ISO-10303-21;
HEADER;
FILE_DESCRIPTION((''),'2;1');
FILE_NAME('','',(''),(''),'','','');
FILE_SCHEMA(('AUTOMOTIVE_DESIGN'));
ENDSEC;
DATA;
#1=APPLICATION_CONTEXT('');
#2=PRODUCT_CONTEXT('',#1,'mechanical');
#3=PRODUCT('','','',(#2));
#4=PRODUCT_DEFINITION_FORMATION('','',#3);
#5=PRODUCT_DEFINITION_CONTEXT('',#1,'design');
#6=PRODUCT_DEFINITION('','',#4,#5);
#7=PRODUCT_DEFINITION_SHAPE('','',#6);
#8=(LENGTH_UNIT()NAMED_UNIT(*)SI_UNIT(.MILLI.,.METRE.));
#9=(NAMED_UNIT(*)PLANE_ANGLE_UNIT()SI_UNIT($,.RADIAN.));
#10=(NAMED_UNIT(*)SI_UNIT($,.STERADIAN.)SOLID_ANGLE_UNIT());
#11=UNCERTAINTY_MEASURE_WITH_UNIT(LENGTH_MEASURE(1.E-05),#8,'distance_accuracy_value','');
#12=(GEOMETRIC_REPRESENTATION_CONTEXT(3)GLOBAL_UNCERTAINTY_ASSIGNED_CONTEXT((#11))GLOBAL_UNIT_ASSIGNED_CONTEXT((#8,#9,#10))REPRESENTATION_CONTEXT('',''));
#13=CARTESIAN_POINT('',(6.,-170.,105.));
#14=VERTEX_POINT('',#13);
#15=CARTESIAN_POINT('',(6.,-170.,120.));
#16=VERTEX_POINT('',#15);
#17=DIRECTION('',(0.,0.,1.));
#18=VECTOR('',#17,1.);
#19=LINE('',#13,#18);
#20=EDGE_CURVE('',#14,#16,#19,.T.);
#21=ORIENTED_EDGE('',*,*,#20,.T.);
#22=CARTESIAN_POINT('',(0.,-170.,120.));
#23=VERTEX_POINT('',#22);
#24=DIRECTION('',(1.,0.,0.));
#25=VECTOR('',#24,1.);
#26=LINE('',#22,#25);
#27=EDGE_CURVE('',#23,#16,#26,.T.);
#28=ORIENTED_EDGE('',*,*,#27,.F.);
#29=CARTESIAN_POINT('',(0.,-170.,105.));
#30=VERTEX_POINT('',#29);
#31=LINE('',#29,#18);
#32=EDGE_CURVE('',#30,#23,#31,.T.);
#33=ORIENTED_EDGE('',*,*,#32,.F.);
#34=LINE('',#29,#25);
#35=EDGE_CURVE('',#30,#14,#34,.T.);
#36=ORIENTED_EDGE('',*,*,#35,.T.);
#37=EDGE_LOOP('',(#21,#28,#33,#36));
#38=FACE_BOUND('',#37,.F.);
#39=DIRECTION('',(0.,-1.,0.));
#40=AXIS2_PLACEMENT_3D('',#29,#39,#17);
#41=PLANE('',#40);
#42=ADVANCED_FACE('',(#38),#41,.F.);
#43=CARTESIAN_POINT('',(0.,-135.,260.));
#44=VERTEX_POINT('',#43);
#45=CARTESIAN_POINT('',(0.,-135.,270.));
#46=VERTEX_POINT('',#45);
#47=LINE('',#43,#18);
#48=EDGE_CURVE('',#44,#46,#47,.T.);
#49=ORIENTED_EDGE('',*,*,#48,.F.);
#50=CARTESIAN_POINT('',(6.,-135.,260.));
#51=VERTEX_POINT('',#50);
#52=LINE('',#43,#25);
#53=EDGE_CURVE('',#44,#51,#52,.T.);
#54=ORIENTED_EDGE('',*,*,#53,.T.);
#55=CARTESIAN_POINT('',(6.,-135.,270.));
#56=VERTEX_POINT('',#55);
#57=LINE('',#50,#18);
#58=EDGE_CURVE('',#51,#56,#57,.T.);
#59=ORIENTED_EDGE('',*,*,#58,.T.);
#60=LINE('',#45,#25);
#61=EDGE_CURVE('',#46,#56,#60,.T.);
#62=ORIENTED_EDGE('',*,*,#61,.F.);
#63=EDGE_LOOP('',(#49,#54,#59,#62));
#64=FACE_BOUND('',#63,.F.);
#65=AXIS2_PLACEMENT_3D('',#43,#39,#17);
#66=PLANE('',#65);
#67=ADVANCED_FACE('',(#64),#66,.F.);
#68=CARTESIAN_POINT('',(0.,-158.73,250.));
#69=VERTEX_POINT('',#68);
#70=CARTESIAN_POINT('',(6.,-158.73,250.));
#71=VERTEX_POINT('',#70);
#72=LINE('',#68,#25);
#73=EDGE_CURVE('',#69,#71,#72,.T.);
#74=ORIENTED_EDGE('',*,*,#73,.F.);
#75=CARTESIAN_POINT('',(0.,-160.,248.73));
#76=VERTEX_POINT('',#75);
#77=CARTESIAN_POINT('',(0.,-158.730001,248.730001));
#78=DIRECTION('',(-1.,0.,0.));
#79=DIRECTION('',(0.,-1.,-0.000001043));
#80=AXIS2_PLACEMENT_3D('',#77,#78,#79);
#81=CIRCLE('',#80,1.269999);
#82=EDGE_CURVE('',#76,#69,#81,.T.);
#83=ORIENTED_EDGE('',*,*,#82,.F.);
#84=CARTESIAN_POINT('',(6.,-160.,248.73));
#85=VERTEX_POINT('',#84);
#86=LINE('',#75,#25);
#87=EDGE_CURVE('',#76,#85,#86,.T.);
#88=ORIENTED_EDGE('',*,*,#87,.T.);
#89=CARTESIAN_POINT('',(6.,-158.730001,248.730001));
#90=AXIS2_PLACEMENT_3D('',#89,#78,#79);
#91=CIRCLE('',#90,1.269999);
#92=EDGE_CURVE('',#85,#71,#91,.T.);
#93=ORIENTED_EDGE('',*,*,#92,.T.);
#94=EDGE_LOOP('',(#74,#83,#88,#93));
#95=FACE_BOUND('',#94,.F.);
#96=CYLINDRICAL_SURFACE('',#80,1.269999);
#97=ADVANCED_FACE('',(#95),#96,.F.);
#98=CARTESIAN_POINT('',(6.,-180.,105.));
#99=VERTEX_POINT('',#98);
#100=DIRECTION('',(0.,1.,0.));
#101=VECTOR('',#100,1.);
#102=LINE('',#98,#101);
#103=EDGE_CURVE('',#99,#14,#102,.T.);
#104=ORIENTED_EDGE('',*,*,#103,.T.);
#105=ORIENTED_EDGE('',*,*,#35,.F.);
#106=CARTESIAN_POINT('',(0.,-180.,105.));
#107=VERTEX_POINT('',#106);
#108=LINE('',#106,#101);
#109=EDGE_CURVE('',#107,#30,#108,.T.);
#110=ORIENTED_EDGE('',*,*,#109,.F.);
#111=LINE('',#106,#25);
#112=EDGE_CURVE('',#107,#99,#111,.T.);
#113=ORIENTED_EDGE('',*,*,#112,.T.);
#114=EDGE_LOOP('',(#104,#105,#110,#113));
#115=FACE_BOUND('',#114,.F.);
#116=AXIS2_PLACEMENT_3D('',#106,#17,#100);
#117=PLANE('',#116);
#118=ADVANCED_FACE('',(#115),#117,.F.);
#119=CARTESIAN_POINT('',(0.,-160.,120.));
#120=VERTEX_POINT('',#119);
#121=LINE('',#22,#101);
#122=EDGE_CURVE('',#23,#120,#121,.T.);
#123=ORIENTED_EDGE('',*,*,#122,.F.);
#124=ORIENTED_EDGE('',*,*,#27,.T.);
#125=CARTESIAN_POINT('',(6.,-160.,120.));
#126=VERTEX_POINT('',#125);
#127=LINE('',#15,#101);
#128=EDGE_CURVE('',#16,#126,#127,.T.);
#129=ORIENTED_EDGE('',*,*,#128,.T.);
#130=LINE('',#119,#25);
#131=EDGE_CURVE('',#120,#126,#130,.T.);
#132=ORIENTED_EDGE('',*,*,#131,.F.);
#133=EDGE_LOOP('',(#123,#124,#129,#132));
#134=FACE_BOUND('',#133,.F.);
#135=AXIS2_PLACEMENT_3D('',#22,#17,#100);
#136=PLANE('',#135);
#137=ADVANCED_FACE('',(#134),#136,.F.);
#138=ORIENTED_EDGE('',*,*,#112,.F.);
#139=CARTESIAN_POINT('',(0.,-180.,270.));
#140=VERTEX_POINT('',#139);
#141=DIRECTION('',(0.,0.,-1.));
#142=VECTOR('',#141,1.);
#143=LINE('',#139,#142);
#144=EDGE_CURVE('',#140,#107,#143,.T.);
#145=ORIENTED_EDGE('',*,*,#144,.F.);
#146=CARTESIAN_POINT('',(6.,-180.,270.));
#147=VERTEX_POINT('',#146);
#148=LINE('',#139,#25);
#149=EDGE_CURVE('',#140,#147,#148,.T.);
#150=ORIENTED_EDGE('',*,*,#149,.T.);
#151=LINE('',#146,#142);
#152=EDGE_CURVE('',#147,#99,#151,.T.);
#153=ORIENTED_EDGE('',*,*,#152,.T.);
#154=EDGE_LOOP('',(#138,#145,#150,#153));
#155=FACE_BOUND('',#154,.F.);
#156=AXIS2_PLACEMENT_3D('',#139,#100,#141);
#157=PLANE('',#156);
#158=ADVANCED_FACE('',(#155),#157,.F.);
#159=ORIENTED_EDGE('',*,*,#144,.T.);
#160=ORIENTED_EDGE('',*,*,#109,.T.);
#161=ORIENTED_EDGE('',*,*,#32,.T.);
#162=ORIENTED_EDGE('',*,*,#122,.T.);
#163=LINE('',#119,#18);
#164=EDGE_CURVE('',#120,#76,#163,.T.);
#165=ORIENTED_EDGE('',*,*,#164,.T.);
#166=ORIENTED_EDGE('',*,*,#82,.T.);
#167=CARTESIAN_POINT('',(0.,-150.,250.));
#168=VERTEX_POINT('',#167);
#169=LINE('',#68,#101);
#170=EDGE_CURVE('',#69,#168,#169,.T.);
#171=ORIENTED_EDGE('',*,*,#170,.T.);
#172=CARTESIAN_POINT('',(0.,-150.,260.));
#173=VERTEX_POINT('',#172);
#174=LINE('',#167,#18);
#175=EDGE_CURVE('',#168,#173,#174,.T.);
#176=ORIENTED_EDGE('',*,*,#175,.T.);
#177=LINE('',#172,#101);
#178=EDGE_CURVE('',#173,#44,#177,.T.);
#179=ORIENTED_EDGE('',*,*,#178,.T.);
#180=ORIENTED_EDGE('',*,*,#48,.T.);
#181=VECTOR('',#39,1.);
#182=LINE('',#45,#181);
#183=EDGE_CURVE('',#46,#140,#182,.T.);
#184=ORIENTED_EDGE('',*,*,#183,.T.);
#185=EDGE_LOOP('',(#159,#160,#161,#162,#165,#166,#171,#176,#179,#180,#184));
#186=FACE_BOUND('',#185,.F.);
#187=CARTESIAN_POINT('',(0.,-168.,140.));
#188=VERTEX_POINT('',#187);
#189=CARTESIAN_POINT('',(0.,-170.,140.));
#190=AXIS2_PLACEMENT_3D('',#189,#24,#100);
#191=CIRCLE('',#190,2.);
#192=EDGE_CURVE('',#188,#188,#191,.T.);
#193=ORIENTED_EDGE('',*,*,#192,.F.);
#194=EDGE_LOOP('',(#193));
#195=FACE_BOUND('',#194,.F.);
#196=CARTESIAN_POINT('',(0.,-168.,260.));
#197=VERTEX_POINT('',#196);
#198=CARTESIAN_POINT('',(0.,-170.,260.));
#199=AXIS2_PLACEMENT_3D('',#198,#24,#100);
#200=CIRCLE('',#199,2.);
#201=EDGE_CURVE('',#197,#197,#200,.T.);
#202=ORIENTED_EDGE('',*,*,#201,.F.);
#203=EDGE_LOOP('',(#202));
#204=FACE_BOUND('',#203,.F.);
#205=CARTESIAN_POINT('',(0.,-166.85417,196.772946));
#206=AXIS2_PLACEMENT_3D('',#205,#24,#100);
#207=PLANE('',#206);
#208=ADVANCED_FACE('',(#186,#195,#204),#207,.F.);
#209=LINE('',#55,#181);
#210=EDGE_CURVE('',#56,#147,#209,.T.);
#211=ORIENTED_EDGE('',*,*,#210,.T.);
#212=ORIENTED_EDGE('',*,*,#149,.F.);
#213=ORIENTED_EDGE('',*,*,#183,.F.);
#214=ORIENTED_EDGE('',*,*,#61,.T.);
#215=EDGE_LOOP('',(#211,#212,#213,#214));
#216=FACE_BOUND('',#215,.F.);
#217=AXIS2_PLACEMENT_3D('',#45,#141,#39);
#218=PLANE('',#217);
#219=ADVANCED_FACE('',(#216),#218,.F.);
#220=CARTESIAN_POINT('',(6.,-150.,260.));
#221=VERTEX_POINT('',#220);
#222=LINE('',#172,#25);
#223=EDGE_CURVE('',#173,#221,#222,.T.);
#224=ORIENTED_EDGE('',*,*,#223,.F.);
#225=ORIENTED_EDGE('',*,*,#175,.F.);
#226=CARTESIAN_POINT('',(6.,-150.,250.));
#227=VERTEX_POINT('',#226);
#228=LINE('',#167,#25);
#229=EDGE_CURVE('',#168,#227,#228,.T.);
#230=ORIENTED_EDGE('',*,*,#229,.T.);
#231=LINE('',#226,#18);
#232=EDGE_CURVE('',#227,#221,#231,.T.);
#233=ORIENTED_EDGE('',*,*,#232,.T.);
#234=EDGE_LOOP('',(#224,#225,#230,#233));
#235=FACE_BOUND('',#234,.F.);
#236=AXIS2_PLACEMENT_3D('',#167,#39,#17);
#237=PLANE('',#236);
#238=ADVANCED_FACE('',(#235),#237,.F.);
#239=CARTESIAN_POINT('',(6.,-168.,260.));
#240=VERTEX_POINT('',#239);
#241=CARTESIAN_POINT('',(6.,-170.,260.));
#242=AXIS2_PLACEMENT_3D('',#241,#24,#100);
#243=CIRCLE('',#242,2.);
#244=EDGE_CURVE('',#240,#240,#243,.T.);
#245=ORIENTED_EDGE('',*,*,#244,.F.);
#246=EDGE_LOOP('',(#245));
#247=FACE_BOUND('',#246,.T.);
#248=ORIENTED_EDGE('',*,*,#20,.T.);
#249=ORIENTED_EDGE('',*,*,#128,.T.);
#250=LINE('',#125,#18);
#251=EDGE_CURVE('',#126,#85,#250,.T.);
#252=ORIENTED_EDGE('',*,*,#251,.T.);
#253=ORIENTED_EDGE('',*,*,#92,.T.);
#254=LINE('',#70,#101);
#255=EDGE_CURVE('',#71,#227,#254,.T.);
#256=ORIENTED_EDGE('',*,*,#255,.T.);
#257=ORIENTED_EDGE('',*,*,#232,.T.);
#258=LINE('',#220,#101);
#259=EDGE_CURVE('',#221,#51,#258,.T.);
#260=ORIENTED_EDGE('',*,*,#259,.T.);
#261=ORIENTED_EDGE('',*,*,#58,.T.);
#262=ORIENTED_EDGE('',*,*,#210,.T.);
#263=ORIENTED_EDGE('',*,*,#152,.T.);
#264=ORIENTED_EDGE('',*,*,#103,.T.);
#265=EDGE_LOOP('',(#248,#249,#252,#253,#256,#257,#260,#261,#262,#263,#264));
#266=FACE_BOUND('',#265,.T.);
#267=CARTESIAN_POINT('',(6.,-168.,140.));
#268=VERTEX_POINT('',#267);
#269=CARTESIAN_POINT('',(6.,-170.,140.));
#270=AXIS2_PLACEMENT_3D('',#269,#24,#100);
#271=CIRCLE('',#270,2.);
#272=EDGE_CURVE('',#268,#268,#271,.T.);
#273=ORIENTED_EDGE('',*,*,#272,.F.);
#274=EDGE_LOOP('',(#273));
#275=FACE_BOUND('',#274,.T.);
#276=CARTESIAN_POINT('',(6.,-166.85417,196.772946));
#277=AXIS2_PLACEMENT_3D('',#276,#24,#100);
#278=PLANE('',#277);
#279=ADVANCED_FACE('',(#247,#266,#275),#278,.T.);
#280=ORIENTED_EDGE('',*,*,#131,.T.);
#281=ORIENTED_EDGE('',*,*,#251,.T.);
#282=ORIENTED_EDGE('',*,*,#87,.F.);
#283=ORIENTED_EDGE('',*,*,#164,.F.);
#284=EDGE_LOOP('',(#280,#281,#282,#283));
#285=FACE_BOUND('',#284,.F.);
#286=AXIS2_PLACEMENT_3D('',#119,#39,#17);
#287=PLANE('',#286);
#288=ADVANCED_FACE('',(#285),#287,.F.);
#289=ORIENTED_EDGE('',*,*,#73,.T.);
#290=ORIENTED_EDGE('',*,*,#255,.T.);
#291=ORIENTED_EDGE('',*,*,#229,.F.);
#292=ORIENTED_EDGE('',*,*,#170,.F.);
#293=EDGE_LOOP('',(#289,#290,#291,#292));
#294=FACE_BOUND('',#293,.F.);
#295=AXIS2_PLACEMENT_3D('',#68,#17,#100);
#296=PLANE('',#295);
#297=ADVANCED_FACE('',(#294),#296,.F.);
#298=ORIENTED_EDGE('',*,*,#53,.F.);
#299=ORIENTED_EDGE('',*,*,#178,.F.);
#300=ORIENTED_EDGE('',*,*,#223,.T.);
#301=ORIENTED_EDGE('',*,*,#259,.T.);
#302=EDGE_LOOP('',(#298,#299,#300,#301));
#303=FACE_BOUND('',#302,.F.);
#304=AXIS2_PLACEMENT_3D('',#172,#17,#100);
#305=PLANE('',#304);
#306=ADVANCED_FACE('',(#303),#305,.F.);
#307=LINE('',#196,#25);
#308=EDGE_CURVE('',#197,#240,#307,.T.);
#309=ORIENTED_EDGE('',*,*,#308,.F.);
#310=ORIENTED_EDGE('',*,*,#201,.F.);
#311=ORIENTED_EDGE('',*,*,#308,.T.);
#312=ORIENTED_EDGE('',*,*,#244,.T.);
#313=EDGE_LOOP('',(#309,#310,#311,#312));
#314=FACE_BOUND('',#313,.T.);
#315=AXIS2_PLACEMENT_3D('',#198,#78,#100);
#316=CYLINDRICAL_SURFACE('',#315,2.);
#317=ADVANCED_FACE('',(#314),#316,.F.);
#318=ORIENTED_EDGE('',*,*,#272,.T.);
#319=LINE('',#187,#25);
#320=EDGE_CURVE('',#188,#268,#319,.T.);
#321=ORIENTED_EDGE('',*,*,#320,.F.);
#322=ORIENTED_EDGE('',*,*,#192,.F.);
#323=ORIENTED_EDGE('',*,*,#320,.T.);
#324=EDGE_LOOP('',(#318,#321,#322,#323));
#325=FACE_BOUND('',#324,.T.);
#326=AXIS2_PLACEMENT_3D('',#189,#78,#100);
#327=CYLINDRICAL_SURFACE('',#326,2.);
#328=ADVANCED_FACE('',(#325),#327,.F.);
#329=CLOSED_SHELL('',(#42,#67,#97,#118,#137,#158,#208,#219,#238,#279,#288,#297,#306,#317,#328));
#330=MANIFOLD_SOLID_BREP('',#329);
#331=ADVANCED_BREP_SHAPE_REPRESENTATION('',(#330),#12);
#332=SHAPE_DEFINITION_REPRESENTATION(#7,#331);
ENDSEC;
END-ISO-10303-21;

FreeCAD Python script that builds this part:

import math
import FreeCAD as App
import Part
import Sketcher
from FreeCAD import Vector
Q = App.Units.Quantity

doc = App.newDocument("Part")
body = doc.addObject("PartDesign::Body", "Body")

# Sketch on YZ plane
sketch1 = body.newObject("Sketcher::SketchObject", "Sketch")
sketch1.AttachmentSupport = (doc.getObject("YZ_Plane"), [""])
sketch1.MapMode = "FlatFace"
sketch1.addGeometry(Part.LineSegment(Vector(-158.73, 250, 0), Vector(-150, 250, 0)), False)
sketch1.addGeometry(Part.LineSegment(Vector(-150, 250, 0), Vector(-150, 260, 0)), False)
sketch1.addGeometry(Part.LineSegment(Vector(-150, 260, 0), Vector(-135, 260, 0)), False)
sketch1.addGeometry(Part.LineSegment(Vector(-135, 260, 0), Vector(-135, 270, 0)), False)
sketch1.addGeometry(Part.LineSegment(Vector(-135, 270, 0), Vector(-180, 270, 0)), False)
sketch1.addGeometry(Part.LineSegment(Vector(-180, 270, 0), Vector(-180, 105, 0)), False)
sketch1.addGeometry(Part.LineSegment(Vector(-180, 105, 0), Vector(-170, 105, 0)), False)
sketch1.addGeometry(Part.LineSegment(Vector(-170, 105, 0), Vector(-170, 120, 0)), False)
sketch1.addGeometry(Part.LineSegment(Vector(-170, 120, 0), Vector(-160, 120, 0)), False)
sketch1.addGeometry(Part.LineSegment(Vector(-160, 120, 0), Vector(-160, 248.73, 0)), False)
sketch1.addGeometry(Part.ArcOfCircle(Part.Circle(Vector(-158.730001, 248.730001, 0), Vector(0, 0, 1), 1.269999), math.radians(89.99994), math.radians(180.00006)), False)
sketch1.addGeometry(Part.Circle(Vector(-170, 140, 0), Vector(0, 0, 1), 2), False)
sketch1.addGeometry(Part.Circle(Vector(-170, 260, 0), Vector(0, 0, 1), 2), False)
sketch1.addConstraint(Sketcher.Constraint("Coincident", 0, 2, 1, 1))
sketch1.addConstraint(Sketcher.Constraint("Coincident", 1, 2, 2, 1))
sketch1.addConstraint(Sketcher.Constraint("Coincident", 2, 2, 3, 1))
sketch1.addConstraint(Sketcher.Constraint("Coincident", 3, 2, 4, 1))
sketch1.addConstraint(Sketcher.Constraint("Coincident", 4, 2, 5, 1))
sketch1.addConstraint(Sketcher.Constraint("Coincident", 5, 2, 6, 1))
sketch1.addConstraint(Sketcher.Constraint("Coincident", 6, 2, 7, 1))
sketch1.addConstraint(Sketcher.Constraint("Coincident", 7, 2, 8, 1))
sketch1.addConstraint(Sketcher.Constraint("Coincident", 8, 2, 9, 1))
sketch1.addConstraint(Sketcher.Constraint("Tangent", 9, 2, 10, 2))
sketch1.addConstraint(Sketcher.Constraint("Tangent", 10, 1, 0, 1))
sketch1.addConstraint(Sketcher.Constraint("Horizontal", 0))
sketch1.addConstraint(Sketcher.Constraint("Vertical", 1))
sketch1.addConstraint(Sketcher.Constraint("Horizontal", 2))
sketch1.addConstraint(Sketcher.Constraint("Vertical", 3))
sketch1.addConstraint(Sketcher.Constraint("Horizontal", 4))
sketch1.addConstraint(Sketcher.Constraint("Vertical", 5))
sketch1.addConstraint(Sketcher.Constraint("Horizontal", 6))
sketch1.addConstraint(Sketcher.Constraint("Vertical", 7))
sketch1.addConstraint(Sketcher.Constraint("Horizontal", 8))
sketch1.addConstraint(Sketcher.Constraint("Vertical", 9))
sketch1.addConstraint(Sketcher.Constraint("Equal", 11, 12))
sketch1.addConstraint(Sketcher.Constraint("Horizontal", 12, 3, 1, 2))
sketch1.addConstraint(Sketcher.Constraint("Vertical", 11, 3, 12, 3))
sketch1.addConstraint(Sketcher.Constraint("Vertical", 12, 3, 6, 2))
sketch1.addConstraint(Sketcher.Constraint("Equal", 6, 8))
sketch1.addConstraint(Sketcher.Constraint("Equal", 8, 1))
sketch1.addConstraint(Sketcher.Constraint("Equal", 1, 3))
sketch1.addConstraint(Sketcher.Constraint("Equal", 2, 7))
sketch1.addConstraint(Sketcher.Constraint("Diameter", 11, Q("4 mm")))
sketch1.addConstraint(Sketcher.Constraint("DistanceX", 2, 1, 2, 2, Q("15 mm")))
sketch1.addConstraint(Sketcher.Constraint("DistanceX", 4, 2, 4, 1, Q("45 mm")))
sketch1.addConstraint(Sketcher.Constraint("DistanceX", 6, 1, 6, 2, Q("10 mm")))
sketch1.addConstraint(Sketcher.Constraint("DistanceY", 5, 2, 5, 1, Q("165 mm")))
sketch1.addConstraint(Sketcher.Constraint("Radius", 10, Q("1.269999 mm")))
sketch1.addConstraint(Sketcher.Constraint("DistanceX", 11, 3, -1, 1, Q("170 mm")))
sketch1.addConstraint(Sketcher.Constraint("DistanceY", -1, 1, 11, 3, Q("140 mm")))
sketch1.addConstraint(Sketcher.Constraint("DistanceY", -1, 1, 12, 3, Q("260 mm")))
pad1 = body.newObject("PartDesign::Pad", "Pad")
pad1.Profile = sketch1
pad1.Length = 6

doc.recompute()
